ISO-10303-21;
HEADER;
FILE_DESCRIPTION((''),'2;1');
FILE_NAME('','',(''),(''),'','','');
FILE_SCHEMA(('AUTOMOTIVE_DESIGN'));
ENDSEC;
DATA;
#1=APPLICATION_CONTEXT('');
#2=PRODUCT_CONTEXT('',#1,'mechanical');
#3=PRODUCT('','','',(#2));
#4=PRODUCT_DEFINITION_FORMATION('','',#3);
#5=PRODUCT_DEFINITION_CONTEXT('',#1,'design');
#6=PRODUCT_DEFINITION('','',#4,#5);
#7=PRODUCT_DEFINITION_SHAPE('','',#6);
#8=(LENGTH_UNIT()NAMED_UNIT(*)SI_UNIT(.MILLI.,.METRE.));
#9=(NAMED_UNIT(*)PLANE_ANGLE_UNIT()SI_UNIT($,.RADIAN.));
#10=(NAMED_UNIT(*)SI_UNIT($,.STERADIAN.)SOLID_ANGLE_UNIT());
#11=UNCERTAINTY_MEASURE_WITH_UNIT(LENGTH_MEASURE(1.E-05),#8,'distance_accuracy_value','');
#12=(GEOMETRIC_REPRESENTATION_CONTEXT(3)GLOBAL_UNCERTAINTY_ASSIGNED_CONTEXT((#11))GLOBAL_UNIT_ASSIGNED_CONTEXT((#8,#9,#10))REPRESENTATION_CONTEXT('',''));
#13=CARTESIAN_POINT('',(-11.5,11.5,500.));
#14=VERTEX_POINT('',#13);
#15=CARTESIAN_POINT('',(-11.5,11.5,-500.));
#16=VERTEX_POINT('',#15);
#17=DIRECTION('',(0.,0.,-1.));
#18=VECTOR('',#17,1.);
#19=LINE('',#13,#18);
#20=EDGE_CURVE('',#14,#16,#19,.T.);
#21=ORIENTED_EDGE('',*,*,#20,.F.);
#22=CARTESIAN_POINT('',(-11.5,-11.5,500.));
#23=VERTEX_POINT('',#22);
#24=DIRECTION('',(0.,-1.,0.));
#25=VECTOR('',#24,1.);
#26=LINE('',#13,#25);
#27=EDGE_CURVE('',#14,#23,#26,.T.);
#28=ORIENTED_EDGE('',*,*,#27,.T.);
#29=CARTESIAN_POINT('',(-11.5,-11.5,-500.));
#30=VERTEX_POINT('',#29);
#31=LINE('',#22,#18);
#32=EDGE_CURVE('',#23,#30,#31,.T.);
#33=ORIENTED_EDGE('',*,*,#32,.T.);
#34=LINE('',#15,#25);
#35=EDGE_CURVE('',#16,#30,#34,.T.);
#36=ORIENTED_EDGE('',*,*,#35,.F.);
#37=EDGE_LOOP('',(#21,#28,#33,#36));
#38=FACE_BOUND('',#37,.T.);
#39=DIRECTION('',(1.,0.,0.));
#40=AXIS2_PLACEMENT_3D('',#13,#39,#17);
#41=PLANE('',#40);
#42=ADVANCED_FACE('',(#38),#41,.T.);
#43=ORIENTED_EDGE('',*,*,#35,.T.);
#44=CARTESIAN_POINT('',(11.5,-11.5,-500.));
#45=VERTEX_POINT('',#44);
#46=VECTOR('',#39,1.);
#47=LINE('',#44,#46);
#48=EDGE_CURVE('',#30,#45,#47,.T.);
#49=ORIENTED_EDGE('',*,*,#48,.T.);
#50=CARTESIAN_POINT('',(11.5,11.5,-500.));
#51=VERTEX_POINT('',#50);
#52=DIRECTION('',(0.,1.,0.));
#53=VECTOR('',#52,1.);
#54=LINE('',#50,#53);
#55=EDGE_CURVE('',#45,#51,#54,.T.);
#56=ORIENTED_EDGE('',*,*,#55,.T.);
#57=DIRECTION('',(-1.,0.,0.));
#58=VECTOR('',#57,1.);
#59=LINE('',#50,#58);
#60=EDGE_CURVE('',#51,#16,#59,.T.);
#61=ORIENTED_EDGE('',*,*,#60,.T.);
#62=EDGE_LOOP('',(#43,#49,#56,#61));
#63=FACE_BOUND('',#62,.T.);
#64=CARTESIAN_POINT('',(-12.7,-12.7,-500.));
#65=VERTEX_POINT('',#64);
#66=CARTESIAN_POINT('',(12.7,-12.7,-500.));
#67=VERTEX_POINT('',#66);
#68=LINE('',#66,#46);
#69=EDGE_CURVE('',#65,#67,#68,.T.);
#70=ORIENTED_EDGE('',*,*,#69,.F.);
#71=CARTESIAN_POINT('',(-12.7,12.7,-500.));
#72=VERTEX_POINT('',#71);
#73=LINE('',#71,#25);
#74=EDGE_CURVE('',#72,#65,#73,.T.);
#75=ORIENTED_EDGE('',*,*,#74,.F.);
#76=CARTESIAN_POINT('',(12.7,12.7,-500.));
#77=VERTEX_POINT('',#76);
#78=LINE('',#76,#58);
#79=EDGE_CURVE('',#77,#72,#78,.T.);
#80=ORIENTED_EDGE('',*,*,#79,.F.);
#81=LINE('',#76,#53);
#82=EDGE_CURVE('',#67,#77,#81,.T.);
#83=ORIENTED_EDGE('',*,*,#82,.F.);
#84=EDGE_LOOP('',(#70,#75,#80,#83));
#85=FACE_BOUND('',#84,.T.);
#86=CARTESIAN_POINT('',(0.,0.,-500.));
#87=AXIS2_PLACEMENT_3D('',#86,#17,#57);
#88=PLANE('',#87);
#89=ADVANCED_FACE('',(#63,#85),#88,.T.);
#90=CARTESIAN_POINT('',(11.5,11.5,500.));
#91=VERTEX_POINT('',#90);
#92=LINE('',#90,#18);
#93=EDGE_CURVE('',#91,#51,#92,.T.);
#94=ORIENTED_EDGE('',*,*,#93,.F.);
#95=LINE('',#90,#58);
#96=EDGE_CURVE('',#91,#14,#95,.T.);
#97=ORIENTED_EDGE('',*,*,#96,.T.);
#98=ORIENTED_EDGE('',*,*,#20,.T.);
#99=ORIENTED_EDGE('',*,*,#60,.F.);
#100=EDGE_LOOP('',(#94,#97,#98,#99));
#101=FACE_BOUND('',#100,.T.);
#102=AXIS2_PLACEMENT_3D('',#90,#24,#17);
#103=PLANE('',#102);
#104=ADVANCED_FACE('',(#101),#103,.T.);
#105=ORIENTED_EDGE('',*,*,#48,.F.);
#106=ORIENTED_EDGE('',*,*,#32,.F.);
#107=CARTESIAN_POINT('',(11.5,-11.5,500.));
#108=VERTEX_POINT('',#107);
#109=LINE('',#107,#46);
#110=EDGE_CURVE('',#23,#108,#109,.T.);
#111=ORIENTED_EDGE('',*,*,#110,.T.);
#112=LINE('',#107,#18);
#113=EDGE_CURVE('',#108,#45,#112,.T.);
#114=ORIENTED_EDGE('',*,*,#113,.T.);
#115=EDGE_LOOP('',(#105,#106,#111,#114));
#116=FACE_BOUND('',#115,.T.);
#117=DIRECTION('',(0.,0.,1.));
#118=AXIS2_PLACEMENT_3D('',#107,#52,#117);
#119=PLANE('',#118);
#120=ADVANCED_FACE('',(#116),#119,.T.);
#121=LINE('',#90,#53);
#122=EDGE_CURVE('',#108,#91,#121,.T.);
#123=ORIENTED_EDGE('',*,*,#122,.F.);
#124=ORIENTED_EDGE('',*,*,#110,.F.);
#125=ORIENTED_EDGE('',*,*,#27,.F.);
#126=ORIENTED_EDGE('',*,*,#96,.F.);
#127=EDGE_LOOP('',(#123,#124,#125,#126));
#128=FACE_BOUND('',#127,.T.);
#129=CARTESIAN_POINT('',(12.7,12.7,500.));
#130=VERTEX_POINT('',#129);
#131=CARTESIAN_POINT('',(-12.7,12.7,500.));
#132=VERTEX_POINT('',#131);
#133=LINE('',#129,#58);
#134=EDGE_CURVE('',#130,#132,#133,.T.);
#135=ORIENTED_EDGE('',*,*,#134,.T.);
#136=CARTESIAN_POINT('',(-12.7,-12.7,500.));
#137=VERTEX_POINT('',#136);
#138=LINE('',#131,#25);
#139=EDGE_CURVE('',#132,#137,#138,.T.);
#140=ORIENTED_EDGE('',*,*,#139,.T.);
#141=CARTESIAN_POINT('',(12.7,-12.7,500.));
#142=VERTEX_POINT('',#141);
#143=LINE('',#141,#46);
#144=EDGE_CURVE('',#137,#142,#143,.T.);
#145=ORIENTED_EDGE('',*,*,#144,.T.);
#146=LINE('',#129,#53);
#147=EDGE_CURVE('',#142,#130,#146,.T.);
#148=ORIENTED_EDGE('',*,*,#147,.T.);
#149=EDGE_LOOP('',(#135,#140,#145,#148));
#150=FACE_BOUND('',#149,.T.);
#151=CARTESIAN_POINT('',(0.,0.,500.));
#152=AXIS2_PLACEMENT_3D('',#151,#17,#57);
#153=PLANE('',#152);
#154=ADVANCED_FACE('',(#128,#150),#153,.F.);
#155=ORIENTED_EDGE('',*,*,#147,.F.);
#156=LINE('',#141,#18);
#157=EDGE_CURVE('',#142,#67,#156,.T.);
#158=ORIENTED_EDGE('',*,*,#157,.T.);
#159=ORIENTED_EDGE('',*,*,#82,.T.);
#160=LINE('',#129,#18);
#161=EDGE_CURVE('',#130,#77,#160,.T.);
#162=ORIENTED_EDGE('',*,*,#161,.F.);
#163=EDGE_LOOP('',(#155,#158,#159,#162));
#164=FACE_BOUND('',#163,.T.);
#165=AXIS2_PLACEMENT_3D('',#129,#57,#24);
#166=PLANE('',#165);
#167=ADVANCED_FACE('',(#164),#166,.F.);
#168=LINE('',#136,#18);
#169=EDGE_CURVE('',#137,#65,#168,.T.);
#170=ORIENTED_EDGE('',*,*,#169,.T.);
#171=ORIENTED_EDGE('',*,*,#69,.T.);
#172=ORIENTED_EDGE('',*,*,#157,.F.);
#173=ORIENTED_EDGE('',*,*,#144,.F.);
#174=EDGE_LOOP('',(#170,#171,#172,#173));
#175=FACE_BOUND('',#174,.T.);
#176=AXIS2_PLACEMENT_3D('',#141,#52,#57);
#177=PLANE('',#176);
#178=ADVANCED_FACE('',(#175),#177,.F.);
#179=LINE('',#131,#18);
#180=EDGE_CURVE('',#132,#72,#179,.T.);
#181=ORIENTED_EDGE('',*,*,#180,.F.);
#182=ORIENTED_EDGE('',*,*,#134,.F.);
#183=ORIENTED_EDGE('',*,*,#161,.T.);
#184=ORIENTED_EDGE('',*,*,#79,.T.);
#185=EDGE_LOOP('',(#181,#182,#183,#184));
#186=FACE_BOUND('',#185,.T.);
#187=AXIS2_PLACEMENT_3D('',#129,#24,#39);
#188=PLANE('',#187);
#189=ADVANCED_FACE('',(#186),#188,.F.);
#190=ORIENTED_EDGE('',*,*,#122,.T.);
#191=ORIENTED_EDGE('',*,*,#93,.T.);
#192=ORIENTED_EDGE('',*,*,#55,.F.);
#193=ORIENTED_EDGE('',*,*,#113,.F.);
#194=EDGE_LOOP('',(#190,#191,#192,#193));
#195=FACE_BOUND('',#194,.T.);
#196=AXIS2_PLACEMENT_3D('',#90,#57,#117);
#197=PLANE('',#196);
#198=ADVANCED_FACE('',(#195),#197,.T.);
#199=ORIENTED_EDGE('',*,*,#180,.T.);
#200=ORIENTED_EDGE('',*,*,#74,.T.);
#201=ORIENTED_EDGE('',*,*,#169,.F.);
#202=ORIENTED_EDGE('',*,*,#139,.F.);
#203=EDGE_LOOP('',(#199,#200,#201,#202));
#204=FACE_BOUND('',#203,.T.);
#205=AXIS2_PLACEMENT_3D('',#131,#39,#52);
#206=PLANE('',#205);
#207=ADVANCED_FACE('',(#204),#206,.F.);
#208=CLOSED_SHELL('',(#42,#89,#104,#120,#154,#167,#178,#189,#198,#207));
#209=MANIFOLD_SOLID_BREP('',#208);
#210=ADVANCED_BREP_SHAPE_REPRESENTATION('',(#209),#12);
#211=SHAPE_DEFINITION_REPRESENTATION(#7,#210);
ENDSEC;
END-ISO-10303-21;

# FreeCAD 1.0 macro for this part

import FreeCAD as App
import Part
import Sketcher
Q = App.Units.Quantity


def add_polygon(sketch, points):
    """Adds a closed chain of lines whose ends are joined by coincident constraints."""
    first, n = sketch.GeometryCount, len(points)
    for a, b in zip(points, points[1:] + points[:1]):
        sketch.addGeometry(Part.LineSegment(App.Vector(*a, 0), App.Vector(*b, 0)), False)
    for i in range(n):
        sketch.addConstraint(Sketcher.Constraint("Coincident", first + i, 2, first + (i + 1) % n, 1))

doc = App.newDocument("Part")
body = doc.addObject("PartDesign::Body", "Body")

# Sketch on XY plane
sketch1 = doc.addObject("Sketcher::SketchObject", "Sketch")
body.addObject(sketch1)
sketch1.AttachmentSupport = (doc.XY_Plane, [""])
sketch1.MapMode = "FlatFace"
add_polygon(sketch1, [(-13, 13), (-13, -13), (13, -13), (13, 13)])  # lines 0-3
add_polygon(sketch1, [(12, -12), (-12, -12), (-12, 12), (12, 12)])  # lines 4-7
sketch1.addConstraint([
    Sketcher.Constraint("Vertical", 0),
    Sketcher.Constraint("Horizontal", 1),
    Sketcher.Constraint("Vertical", 2),
    Sketcher.Constraint("Horizontal", 3),
    Sketcher.Constraint("Horizontal", 4),
    Sketcher.Constraint("Vertical", 5),
    Sketcher.Constraint("Horizontal", 6),
    Sketcher.Constraint("Vertical", 7),
    Sketcher.Constraint("Symmetric", 0, 2, 2, 2, -1, 1),
    Sketcher.Constraint("Symmetric", 4, 2, 6, 2, -1, 1),
    Sketcher.Constraint("Equal", 3, 0),
    Sketcher.Constraint("Equal", 6, 5),
    Sketcher.Constraint("DistanceX", 4, 2, 4, 1, Q("23 mm")),
    Sketcher.Constraint("DistanceX", 1, 1, 1, 2, Q("25.4 mm")),
])
pad1 = doc.addObject("PartDesign::Pad", "Pad")
body.addObject(pad1)
pad1.Profile = sketch1
pad1.Length = 1000
pad1.Midplane = True

doc.recompute()
